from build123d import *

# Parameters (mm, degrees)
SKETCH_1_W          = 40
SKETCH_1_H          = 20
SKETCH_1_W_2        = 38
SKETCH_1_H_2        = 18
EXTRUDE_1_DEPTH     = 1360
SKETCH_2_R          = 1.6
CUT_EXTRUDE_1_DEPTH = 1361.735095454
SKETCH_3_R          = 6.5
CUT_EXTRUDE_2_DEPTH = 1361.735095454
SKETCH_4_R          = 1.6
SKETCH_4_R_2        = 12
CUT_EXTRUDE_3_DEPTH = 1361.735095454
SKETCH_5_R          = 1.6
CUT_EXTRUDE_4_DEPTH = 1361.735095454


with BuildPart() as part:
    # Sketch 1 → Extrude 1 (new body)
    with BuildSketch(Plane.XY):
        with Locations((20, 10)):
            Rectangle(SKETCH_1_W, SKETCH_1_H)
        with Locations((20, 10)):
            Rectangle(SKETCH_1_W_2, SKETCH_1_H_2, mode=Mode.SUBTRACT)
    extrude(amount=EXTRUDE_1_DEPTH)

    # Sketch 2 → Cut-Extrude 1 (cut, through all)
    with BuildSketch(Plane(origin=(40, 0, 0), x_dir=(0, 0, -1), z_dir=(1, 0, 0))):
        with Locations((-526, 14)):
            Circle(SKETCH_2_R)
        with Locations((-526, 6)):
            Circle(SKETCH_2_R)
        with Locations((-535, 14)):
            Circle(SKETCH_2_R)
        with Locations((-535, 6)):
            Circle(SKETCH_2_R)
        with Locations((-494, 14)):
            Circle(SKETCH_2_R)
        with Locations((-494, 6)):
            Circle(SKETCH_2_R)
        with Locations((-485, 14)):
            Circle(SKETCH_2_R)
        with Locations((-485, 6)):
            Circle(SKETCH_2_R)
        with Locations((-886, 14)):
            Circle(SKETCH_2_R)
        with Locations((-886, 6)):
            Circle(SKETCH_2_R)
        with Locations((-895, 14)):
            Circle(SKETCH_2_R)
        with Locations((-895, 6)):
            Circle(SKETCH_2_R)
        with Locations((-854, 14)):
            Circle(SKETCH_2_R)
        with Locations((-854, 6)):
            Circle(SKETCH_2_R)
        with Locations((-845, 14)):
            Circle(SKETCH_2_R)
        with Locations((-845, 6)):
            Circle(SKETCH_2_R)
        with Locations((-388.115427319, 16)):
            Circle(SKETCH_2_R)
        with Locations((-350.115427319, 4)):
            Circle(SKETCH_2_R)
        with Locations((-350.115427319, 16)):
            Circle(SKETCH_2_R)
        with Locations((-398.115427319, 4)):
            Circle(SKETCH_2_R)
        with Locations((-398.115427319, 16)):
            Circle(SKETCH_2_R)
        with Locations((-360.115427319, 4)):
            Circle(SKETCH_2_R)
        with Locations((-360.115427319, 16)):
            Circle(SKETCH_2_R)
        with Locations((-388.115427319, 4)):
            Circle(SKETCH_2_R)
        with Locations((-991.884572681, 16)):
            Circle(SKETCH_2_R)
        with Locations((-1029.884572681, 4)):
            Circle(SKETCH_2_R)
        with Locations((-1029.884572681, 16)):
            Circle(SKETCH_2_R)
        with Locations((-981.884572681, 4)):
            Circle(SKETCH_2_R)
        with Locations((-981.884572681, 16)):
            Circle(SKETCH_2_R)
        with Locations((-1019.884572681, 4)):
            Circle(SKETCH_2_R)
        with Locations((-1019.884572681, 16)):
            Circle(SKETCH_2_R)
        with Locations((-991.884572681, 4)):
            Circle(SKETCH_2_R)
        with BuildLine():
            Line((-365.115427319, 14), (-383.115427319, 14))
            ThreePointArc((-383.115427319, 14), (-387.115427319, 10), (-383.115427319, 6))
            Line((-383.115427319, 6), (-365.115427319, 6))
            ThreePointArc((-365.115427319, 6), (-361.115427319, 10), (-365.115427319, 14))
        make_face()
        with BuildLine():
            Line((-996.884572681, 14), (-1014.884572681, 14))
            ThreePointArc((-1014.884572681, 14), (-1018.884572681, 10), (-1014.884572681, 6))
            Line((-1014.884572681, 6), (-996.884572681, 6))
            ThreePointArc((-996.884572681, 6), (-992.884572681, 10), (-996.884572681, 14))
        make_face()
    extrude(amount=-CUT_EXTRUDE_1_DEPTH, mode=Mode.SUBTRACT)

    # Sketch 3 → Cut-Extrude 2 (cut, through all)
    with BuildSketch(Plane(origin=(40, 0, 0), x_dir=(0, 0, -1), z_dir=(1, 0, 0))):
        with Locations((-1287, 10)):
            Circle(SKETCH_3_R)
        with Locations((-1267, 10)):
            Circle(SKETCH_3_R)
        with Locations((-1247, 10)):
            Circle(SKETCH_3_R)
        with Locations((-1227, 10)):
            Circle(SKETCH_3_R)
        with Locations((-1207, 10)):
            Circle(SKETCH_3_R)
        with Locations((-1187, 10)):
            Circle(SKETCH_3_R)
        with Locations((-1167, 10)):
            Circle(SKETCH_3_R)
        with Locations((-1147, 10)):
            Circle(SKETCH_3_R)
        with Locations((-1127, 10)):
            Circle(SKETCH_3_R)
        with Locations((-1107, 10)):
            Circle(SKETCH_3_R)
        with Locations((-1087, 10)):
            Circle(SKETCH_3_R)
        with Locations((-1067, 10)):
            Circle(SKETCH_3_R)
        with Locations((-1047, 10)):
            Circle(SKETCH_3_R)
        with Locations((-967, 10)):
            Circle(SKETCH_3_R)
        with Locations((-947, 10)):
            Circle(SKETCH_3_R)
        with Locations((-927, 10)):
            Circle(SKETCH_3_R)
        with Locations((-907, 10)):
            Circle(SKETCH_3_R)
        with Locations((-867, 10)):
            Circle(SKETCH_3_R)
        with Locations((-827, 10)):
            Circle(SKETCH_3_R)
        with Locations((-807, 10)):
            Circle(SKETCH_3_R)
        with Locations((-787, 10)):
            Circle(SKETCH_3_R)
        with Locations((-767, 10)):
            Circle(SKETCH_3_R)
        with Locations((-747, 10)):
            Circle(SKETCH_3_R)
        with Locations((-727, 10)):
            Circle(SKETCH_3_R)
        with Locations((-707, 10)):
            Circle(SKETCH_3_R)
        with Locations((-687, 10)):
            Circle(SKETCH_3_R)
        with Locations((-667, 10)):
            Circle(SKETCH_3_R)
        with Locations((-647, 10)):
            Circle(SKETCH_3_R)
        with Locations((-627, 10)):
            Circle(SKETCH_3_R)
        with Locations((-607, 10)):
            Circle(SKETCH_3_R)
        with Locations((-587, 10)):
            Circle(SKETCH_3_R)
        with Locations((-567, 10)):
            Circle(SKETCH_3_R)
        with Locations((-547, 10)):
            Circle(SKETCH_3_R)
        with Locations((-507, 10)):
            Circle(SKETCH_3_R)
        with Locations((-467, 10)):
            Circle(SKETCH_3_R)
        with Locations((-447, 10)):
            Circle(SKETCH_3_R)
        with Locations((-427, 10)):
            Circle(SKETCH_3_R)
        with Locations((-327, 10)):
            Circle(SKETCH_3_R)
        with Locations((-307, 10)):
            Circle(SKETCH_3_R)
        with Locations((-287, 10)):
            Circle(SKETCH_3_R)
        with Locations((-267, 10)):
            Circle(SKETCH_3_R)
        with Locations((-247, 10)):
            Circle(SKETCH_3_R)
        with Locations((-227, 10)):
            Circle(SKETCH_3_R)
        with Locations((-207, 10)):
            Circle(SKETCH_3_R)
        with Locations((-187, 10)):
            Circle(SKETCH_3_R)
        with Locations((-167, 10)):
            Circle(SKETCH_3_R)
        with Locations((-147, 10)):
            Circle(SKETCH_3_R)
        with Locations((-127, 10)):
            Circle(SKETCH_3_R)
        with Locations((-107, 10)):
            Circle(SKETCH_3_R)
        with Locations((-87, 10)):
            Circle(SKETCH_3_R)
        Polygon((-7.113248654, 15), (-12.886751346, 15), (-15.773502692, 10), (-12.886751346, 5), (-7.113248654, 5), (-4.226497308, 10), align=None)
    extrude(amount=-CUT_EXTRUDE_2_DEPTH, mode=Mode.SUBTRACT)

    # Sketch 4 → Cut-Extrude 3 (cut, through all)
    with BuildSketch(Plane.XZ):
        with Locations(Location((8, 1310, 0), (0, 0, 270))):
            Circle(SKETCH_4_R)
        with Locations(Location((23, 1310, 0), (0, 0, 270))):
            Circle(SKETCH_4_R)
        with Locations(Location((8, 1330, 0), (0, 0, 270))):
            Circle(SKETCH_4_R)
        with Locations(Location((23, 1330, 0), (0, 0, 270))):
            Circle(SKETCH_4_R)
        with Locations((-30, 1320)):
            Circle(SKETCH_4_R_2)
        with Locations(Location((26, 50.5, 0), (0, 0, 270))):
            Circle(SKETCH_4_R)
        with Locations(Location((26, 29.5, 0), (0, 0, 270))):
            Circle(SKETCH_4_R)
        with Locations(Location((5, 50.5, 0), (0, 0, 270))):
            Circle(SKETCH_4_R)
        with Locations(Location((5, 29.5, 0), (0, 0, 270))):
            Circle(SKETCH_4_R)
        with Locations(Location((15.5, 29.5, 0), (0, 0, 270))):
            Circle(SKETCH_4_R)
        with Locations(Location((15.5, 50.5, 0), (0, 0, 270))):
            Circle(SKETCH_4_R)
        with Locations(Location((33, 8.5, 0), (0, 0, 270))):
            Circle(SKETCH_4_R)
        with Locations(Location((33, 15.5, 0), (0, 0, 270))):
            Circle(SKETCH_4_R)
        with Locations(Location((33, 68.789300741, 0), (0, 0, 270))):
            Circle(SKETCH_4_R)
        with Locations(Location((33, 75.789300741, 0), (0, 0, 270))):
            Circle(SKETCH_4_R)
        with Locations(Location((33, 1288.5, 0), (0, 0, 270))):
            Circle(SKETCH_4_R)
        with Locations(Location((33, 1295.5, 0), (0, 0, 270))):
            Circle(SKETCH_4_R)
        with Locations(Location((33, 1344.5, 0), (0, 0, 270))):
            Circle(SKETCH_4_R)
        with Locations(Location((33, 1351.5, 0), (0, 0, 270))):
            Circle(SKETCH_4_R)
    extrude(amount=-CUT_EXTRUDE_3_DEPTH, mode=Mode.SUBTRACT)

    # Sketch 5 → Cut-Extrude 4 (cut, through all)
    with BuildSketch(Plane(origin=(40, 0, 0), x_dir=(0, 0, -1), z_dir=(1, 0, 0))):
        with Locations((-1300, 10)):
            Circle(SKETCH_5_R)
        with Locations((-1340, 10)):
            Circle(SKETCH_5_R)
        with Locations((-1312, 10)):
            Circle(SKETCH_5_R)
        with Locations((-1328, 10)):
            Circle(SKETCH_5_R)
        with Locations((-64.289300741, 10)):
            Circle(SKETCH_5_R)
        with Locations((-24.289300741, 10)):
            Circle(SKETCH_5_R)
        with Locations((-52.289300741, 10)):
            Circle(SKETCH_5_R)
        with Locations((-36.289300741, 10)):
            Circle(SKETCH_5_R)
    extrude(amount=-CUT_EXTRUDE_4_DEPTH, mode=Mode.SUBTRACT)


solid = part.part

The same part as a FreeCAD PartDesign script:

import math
import FreeCAD as App
import Part
import Sketcher

V = App.Vector
Q = App.Units.Quantity

doc = App.newDocument("Part")
body = doc.addObject("PartDesign::Body", "Body")

# Sketch on XY plane
sketch1 = body.newObject("Sketcher::SketchObject", "Sketch")
sketch1.AttachmentSupport = (doc.getObject("XY_Plane"), [""])
sketch1.MapMode = "FlatFace"
sketch1.addGeometry(Part.LineSegment(V(0, 20, 0), V(0, 0, 0)), False)
sketch1.addGeometry(Part.LineSegment(V(0, 0, 0), V(40, 0, 0)), False)
sketch1.addGeometry(Part.LineSegment(V(40, 0, 0), V(40, 20, 0)), False)
sketch1.addGeometry(Part.LineSegment(V(40, 20, 0), V(0, 20, 0)), False)
sketch1.addGeometry(Part.LineSegment(V(39, 1, 0), V(1, 1, 0)), False)
sketch1.addGeometry(Part.LineSegment(V(1, 1, 0), V(1, 19, 0)), False)
sketch1.addGeometry(Part.LineSegment(V(1, 19, 0), V(39, 19, 0)), False)
sketch1.addGeometry(Part.LineSegment(V(39, 19, 0), V(39, 1, 0)), False)
sketch1.addConstraint(Sketcher.Constraint("Coincident", 0, 2, 1, 1))
sketch1.addConstraint(Sketcher.Constraint("Coincident", 1, 2, 2, 1))
sketch1.addConstraint(Sketcher.Constraint("Coincident", 2, 2, 3, 1))
sketch1.addConstraint(Sketcher.Constraint("Coincident", 3, 2, 0, 1))
sketch1.addConstraint(Sketcher.Constraint("Coincident", 4, 2, 5, 1))
sketch1.addConstraint(Sketcher.Constraint("Coincident", 5, 2, 6, 1))
sketch1.addConstraint(Sketcher.Constraint("Coincident", 6, 2, 7, 1))
sketch1.addConstraint(Sketcher.Constraint("Coincident", 7, 2, 4, 1))
sketch1.addConstraint(Sketcher.Constraint("Vertical", 0))
sketch1.addConstraint(Sketcher.Constraint("Horizontal", 1))
sketch1.addConstraint(Sketcher.Constraint("Vertical", 2))
sketch1.addConstraint(Sketcher.Constraint("Horizontal", 3))
sketch1.addConstraint(Sketcher.Constraint("Horizontal", 4))
sketch1.addConstraint(Sketcher.Constraint("Vertical", 5))
sketch1.addConstraint(Sketcher.Constraint("Horizontal", 6))
sketch1.addConstraint(Sketcher.Constraint("Vertical", 7))
sketch1.addConstraint(Sketcher.Constraint("Coincident", 0, 2, -1, 1))
sketch1.addConstraint(Sketcher.Constraint("DistanceX", 1, 1, 1, 2, 40.0))
sketch1.addConstraint(Sketcher.Constraint("DistanceX", 4, 2, 4, 1, 38.0))
sketch1.addConstraint(Sketcher.Constraint("DistanceY", 0, 2, 0, 1, 20.0))
sketch1.addConstraint(Sketcher.Constraint("DistanceY", 5, 1, 5, 2, 18.0))
sketch1.addConstraint(Sketcher.Constraint("DistanceX", -1, 1, 4, 2, 1.0))
sketch1.addConstraint(Sketcher.Constraint("DistanceY", -1, 1, 4, 2, 1.0))
pad1 = body.newObject("PartDesign::Pad", "Pad")
pad1.Profile = sketch1
pad1.Length = 1360

# Sketch on YZ plane
sketch2 = body.newObject("Sketcher::SketchObject", "Sketch001")
sketch2.AttachmentSupport = (doc.getObject("YZ_Plane"), [""])
sketch2.MapMode = "FlatFace"
sketch2.AttachmentOffset = App.Placement(V(0, 0, 40), App.Rotation())
sketch2.addGeometry(Part.Circle(V(14, 526, 0), V(0, 0, 1), 1.6), False)
sketch2.addGeometry(Part.Circle(V(6, 526, 0), V(0, 0, 1), 1.6), False)
sketch2.addGeometry(Part.Circle(V(14, 535, 0), V(0, 0, 1), 1.6), False)
sketch2.addGeometry(Part.Circle(V(6, 535, 0), V(0, 0, 1), 1.6), False)
sketch2.addGeometry(Part.Circle(V(14, 494, 0), V(0, 0, 1), 1.6), False)
sketch2.addGeometry(Part.Circle(V(6, 494, 0), V(0, 0, 1), 1.6), False)
sketch2.addGeometry(Part.Circle(V(14, 485, 0), V(0, 0, 1), 1.6), False)
sketch2.addGeometry(Part.Circle(V(6, 485, 0), V(0, 0, 1), 1.6), False)
sketch2.addGeometry(Part.Circle(V(14, 886, 0), V(0, 0, 1), 1.6), False)
sketch2.addGeometry(Part.Circle(V(6, 886, 0), V(0, 0, 1), 1.6), False)
sketch2.addGeometry(Part.Circle(V(14, 895, 0), V(0, 0, 1), 1.6), False)
sketch2.addGeometry(Part.Circle(V(6, 895, 0), V(0, 0, 1), 1.6), False)
sketch2.addGeometry(Part.Circle(V(14, 854, 0), V(0, 0, 1), 1.6), False)
sketch2.addGeometry(Part.Circle(V(6, 854, 0), V(0, 0, 1), 1.6), False)
sketch2.addGeometry(Part.Circle(V(14, 845, 0), V(0, 0, 1), 1.6), False)
sketch2.addGeometry(Part.Circle(V(6, 845, 0), V(0, 0, 1), 1.6), False)
sketch2.addGeometry(Part.Circle(V(16, 388.115427, 0), V(0, 0, 1), 1.6), False)
sketch2.addGeometry(Part.Circle(V(4, 350.115427, 0), V(0, 0, 1), 1.6), False)
sketch2.addGeometry(Part.Circle(V(16, 350.115427, 0), V(0, 0, 1), 1.6), False)
sketch2.addGeometry(Part.Circle(V(4, 398.115427, 0), V(0, 0, 1), 1.6), False)
sketch2.addGeometry(Part.Circle(V(16, 398.115427, 0), V(0, 0, 1), 1.6), False)
sketch2.addGeometry(Part.Circle(V(4, 360.115427, 0), V(0, 0, 1), 1.6), False)
sketch2.addGeometry(Part.Circle(V(16, 360.115427, 0), V(0, 0, 1), 1.6), False)
sketch2.addGeometry(Part.Circle(V(4, 388.115427, 0), V(0, 0, 1), 1.6), False)
sketch2.addGeometry(Part.Circle(V(16, 991.884573, 0), V(0, 0, 1), 1.6), False)
sketch2.addGeometry(Part.Circle(V(4, 1029.884573, 0), V(0, 0, 1), 1.6), False)
sketch2.addGeometry(Part.Circle(V(16, 1029.884573, 0), V(0, 0, 1), 1.6), False)
sketch2.addGeometry(Part.Circle(V(4, 981.884573, 0), V(0, 0, 1), 1.6), False)
sketch2.addGeometry(Part.Circle(V(16, 981.884573, 0), V(0, 0, 1), 1.6), False)
sketch2.addGeometry(Part.Circle(V(4, 1019.884573, 0), V(0, 0, 1), 1.6), False)
sketch2.addGeometry(Part.Circle(V(16, 1019.884573, 0), V(0, 0, 1), 1.6), False)
sketch2.addGeometry(Part.Circle(V(4, 991.884573, 0), V(0, 0, 1), 1.6), False)
sketch2.addGeometry(Part.LineSegment(V(14, 365.115427, 0), V(14, 383.115427, 0)), False)
sketch2.addGeometry(Part.ArcOfCircle(Part.Circle(V(10, 383.115427, 0), V(0, 0, 1), 4), math.radians(0), math.radians(180)), False)
sketch2.addGeometry(Part.LineSegment(V(6, 383.115427, 0), V(6, 365.115427, 0)), False)
sketch2.addGeometry(Part.ArcOfCircle(Part.Circle(V(10, 365.115427, 0), V(0, 0, 1), 4), math.radians(180), math.radians(360)), False)
sketch2.addGeometry(Part.LineSegment(V(14, 996.884573, 0), V(14, 1014.884573, 0)), False)
sketch2.addGeometry(Part.ArcOfCircle(Part.Circle(V(10, 1014.884573, 0), V(0, 0, 1), 4), math.radians(0), math.radians(180)), False)
sketch2.addGeometry(Part.LineSegment(V(6, 1014.884573, 0), V(6, 996.884573, 0)), False)
sketch2.addGeometry(Part.ArcOfCircle(Part.Circle(V(10, 996.884573, 0), V(0, 0, 1), 4), math.radians(180), math.radians(360)), False)
sketch2.addConstraint(Sketcher.Constraint("Tangent", 32, 2, 33, 1))
sketch2.addConstraint(Sketcher.Constraint("Tangent", 33, 2, 34, 1))
sketch2.addConstraint(Sketcher.Constraint("Tangent", 34, 2, 35, 1))
sketch2.addConstraint(Sketcher.Constraint("Tangent", 35, 2, 32, 1))
sketch2.addConstraint(Sketcher.Constraint("Tangent", 36, 2, 37, 1))
sketch2.addConstraint(Sketcher.Constraint("Tangent", 37, 2, 38, 1))
sketch2.addConstraint(Sketcher.Constraint("Tangent", 38, 2, 39, 1))
sketch2.addConstraint(Sketcher.Constraint("Tangent", 39, 2, 36, 1))
sketch2.addConstraint(Sketcher.Constraint("Vertical", 32))
sketch2.addConstraint(Sketcher.Constraint("Vertical", 34))
sketch2.addConstraint(Sketcher.Constraint("Vertical", 36))
sketch2.addConstraint(Sketcher.Constraint("Vertical", 38))
sketch2.addConstraint(Sketcher.Constraint("Equal", 0, 1))
sketch2.addConstraint(Sketcher.Constraint("Equal", 1, 2))
sketch2.addConstraint(Sketcher.Constraint("Equal", 2, 3))
sketch2.addConstraint(Sketcher.Constraint("Equal", 3, 4))
sketch2.addConstraint(Sketcher.Constraint("Equal", 4, 5))
sketch2.addConstraint(Sketcher.Constraint("Equal", 5, 6))
sketch2.addConstraint(Sketcher.Constraint("Equal", 6, 7))
sketch2.addConstraint(Sketcher.Constraint("Equal", 7, 8))
sketch2.addConstraint(Sketcher.Constraint("Equal", 8, 9))
sketch2.addConstraint(Sketcher.Constraint("Equal", 9, 10))
sketch2.addConstraint(Sketcher.Constraint("Equal", 10, 11))
sketch2.addConstraint(Sketcher.Constraint("Equal", 11, 12))
sketch2.addConstraint(Sketcher.Constraint("Equal", 12, 13))
sketch2.addConstraint(Sketcher.Constraint("Equal", 13, 14))
sketch2.addConstraint(Sketcher.Constraint("Equal", 14, 15))
sketch2.addConstraint(Sketcher.Constraint("Equal", 15, 16))
sketch2.addConstraint(Sketcher.Constraint("Equal", 16, 17))
sketch2.addConstraint(Sketcher.Constraint("Equal", 17, 18))
sketch2.addConstraint(Sketcher.Constraint("Equal", 18, 19))
sketch2.addConstraint(Sketcher.Constraint("Equal", 19, 20))
sketch2.addConstraint(Sketcher.Constraint("Equal", 20, 21))
sketch2.addConstraint(Sketcher.Constraint("Equal", 21, 22))
sketch2.addConstraint(Sketcher.Constraint("Equal", 22, 23))
sketch2.addConstraint(Sketcher.Constraint("Equal", 23, 24))
sketch2.addConstraint(Sketcher.Constraint("Equal", 24, 25))
sketch2.addConstraint(Sketcher.Constraint("Equal", 25, 26))
sketch2.addConstraint(Sketcher.Constraint("Equal", 26, 27))
sketch2.addConstraint(Sketcher.Constraint("Equal", 27, 28))
sketch2.addConstraint(Sketcher.Constraint("Equal", 28, 29))
sketch2.addConstraint(Sketcher.Constraint("Equal", 29, 30))
sketch2.addConstraint(Sketcher.Constraint("Equal", 30, 31))
sketch2.addConstraint(Sketcher.Constraint("Equal", 35, 37))
sketch2.addConstraint(Sketcher.Constraint("Horizontal", 0, 3, 1, 3))
sketch2.addConstraint(Sketcher.Constraint("Horizontal", 2, 3, 3, 3))
sketch2.addConstraint(Sketcher.Constraint("Horizontal", 4, 3, 5, 3))
sketch2.addConstraint(Sketcher.Constraint("Horizontal", 6, 3, 7, 3))
sketch2.addConstraint(Sketcher.Constraint("Horizontal", 8, 3, 9, 3))
sketch2.addConstraint(Sketcher.Constraint("Horizontal", 10, 3, 11, 3))
sketch2.addConstraint(Sketcher.Constraint("Horizontal", 12, 3, 13, 3))
sketch2.addConstraint(Sketcher.Constraint("Horizontal", 14, 3, 15, 3))
sketch2.addConstraint(Sketcher.Constraint("Horizontal", 17, 3, 18, 3))
sketch2.addConstraint(Sketcher.Constraint("Horizontal", 19, 3, 20, 3))
sketch2.addConstraint(Sketcher.Constraint("Horizontal", 21, 3, 22, 3))
sketch2.addConstraint(Sketcher.Constraint("Horizontal", 16, 3, 23, 3))
sketch2.addConstraint(Sketcher.Constraint("Horizontal", 25, 3, 26, 3))
sketch2.addConstraint(Sketcher.Constraint("Horizontal", 27, 3, 28, 3))
sketch2.addConstraint(Sketcher.Constraint("Horizontal", 29, 3, 30, 3))
sketch2.addConstraint(Sketcher.Constraint("Horizontal", 24, 3, 31, 3))
sketch2.addConstraint(Sketcher.Constraint("Vertical", 0, 3, 2, 3))
sketch2.addConstraint(Sketcher.Constraint("Vertical", 1, 3, 3, 3))
sketch2.addConstraint(Sketcher.Constraint("Vertical", 2, 3, 4, 3))
sketch2.addConstraint(Sketcher.Constraint("Vertical", 3, 3, 5, 3))
sketch2.addConstraint(Sketcher.Constraint("Vertical", 4, 3, 6, 3))
sketch2.addConstraint(Sketcher.Constraint("Vertical", 5, 3, 7, 3))
sketch2.addConstraint(Sketcher.Constraint("Vertical", 6, 3, 8, 3))
sketch2.addConstraint(Sketcher.Constraint("Vertical", 7, 3, 9, 3))
sketch2.addConstraint(Sketcher.Constraint("Vertical", 8, 3, 10, 3))
sketch2.addConstraint(Sketcher.Constraint("Vertical", 9, 3, 11, 3))
sketch2.addConstraint(Sketcher.Constraint("Vertical", 10, 3, 12, 3))
sketch2.addConstraint(Sketcher.Constraint("Vertical", 11, 3, 13, 3))
sketch2.addConstraint(Sketcher.Constraint("Vertical", 12, 3, 14, 3))
sketch2.addConstraint(Sketcher.Constraint("Vertical", 13, 3, 15, 3))
sketch2.addConstraint(Sketcher.Constraint("Vertical", 16, 3, 18, 3))
sketch2.addConstraint(Sketcher.Constraint("Vertical", 17, 3, 19, 3))
sketch2.addConstraint(Sketcher.Constraint("Vertical", 18, 3, 20, 3))
sketch2.addConstraint(Sketcher.Constraint("Vertical", 19, 3, 21, 3))
sketch2.addConstraint(Sketcher.Constraint("Vertical", 20, 3, 22, 3))
sketch2.addConstraint(Sketcher.Constraint("Vertical", 21, 3, 23, 3))
sketch2.addConstraint(Sketcher.Constraint("Vertical", 22, 3, 24, 3))
sketch2.addConstraint(Sketcher.Constraint("Vertical", 23, 3, 25, 3))
sketch2.addConstraint(Sketcher.Constraint("Vertical", 24, 3, 26, 3))
sketch2.addConstraint(Sketcher.Constraint("Vertical", 25, 3, 27, 3))
sketch2.addConstraint(Sketcher.Constraint("Vertical", 26, 3, 28, 3))
sketch2.addConstraint(Sketcher.Constraint("Vertical", 27, 3, 29, 3))
sketch2.addConstraint(Sketcher.Constraint("Vertical", 28, 3, 30, 3))
sketch2.addConstraint(Sketcher.Constraint("Vertical", 29, 3, 31, 3))
sketch2.addConstraint(Sketcher.Constraint("Vertical", 35, 3, 37, 3))
sketch2.addConstraint(Sketcher.Constraint("Vertical", 14, 3, 32, 2))
sketch2.addConstraint(Sketcher.Constraint("Vertical", 15, 3, 33, 2))
sketch2.addConstraint(Sketcher.Constraint("Equal", 34, 36))
sketch2.addConstraint(Sketcher.Constraint("Radius", 33, 4.0))
sketch2.addConstraint(Sketcher.Constraint("Diameter", 0, 3.2))
sketch2.addConstraint(Sketcher.Constraint("DistanceY", 32, 1, 32, 2, 18.0))
sketch2.addConstraint(Sketcher.Constraint("DistanceX", -1, 1, 0, 3, 14.0))
sketch2.addConstraint(Sketcher.Constraint("DistanceY", -1, 1, 0, 3, 526.0))
sketch2.addConstraint(Sketcher.Constraint("DistanceY", -1, 1, 2, 3, 535.0))
sketch2.addConstraint(Sketcher.Constraint("DistanceY", -1, 1, 4, 3, 494.0))
sketch2.addConstraint(Sketcher.Constraint("DistanceY", -1, 1, 6, 3, 485.0))
sketch2.addConstraint(Sketcher.Constraint("DistanceY", -1, 1, 8, 3, 886.0))
sketch2.addConstraint(Sketcher.Constraint("DistanceY", -1, 1, 10, 3, 895.0))
sketch2.addConstraint(Sketcher.Constraint("DistanceY", -1, 1, 12, 3, 854.0))
sketch2.addConstraint(Sketcher.Constraint("DistanceY", -1, 1, 14, 3, 845.0))
sketch2.addConstraint(Sketcher.Constraint("DistanceX", -1, 1, 16, 3, 16.0))
sketch2.addConstraint(Sketcher.Constraint("DistanceX", -1, 1, 17, 3, 4.0))
sketch2.addConstraint(Sketcher.Constraint("DistanceY", 17, 3, 16, 3, 38.0))
sketch2.addConstraint(Sketcher.Constraint("DistanceY", 16, 3, 19, 3, 10.0))
sketch2.addConstraint(Sketcher.Constraint("DistanceY", 17, 3, 21, 3, 10.0))
sketch2.addConstraint(Sketcher.Constraint("DistanceY", 24, 3, 25, 3, 38.0))
sketch2.addConstraint(Sketcher.Constraint("DistanceY", 27, 3, 24, 3, 10.0))
sketch2.addConstraint(Sketcher.Constraint("DistanceY", 29, 3, 25, 3, 10.0))
sketch2.addConstraint(Sketcher.Constraint("DistanceY", 33, 3, 16, 3, 5.0))
sketch2.addConstraint(Sketcher.Constraint("DistanceY", 37, 3, 29, 3, 5.0))
sketch2.addConstraint(Sketcher.Constraint("DistanceY", -1, 1, 16, 3, 388.115427))
sketch2.addConstraint(Sketcher.Constraint("DistanceY", -1, 1, 24, 3, 991.884573))
pocket1 = body.newObject("PartDesign::Pocket", "Pocket")
pocket1.Profile = sketch2
pocket1.Type = "ThroughAll"

# Sketch on YZ plane
sketch3 = body.newObject("Sketcher::SketchObject", "Sketch002")
sketch3.AttachmentSupport = (doc.getObject("YZ_Plane"), [""])
sketch3.MapMode = "FlatFace"
sketch3.AttachmentOffset = App.Placement(V(0, 0, 40), App.Rotation())
sketch3.addGeometry(Part.Circle(V(10, 1287, 0), V(0, 0, 1), 6.5), False)
sketch3.addGeometry(Part.Circle(V(10, 1267, 0), V(0, 0, 1), 6.5), False)
sketch3.addGeometry(Part.Circle(V(10, 1247, 0), V(0, 0, 1), 6.5), False)
sketch3.addGeometry(Part.Circle(V(10, 1227, 0), V(0, 0, 1), 6.5), False)
sketch3.addGeometry(Part.Circle(V(10, 1207, 0), V(0, 0, 1), 6.5), False)
sketch3.addGeometry(Part.Circle(V(10, 1187, 0), V(0, 0, 1), 6.5), False)
sketch3.addGeometry(Part.Circle(V(10, 1167, 0), V(0, 0, 1), 6.5), False)
sketch3.addGeometry(Part.Circle(V(10, 1147, 0), V(0, 0, 1), 6.5), False)
sketch3.addGeometry(Part.Circle(V(10, 1127, 0), V(0, 0, 1), 6.5), False)
sketch3.addGeometry(Part.Circle(V(10, 1107, 0), V(0, 0, 1), 6.5), False)
sketch3.addGeometry(Part.Circle(V(10, 1087, 0), V(0, 0, 1), 6.5), False)
sketch3.addGeometry(Part.Circle(V(10, 1067, 0), V(0, 0, 1), 6.5), False)
sketch3.addGeometry(Part.Circle(V(10, 1047, 0), V(0, 0, 1), 6.5), False)
sketch3.addGeometry(Part.Circle(V(10, 967, 0), V(0, 0, 1), 6.5), False)
sketch3.addGeometry(Part.Circle(V(10, 947, 0), V(0, 0, 1), 6.5), False)
sketch3.addGeometry(Part.Circle(V(10, 927, 0), V(0, 0, 1), 6.5), False)
sketch3.addGeometry(Part.Circle(V(10, 907, 0), V(0, 0, 1), 6.5), False)
sketch3.addGeometry(Part.Circle(V(10, 867, 0), V(0, 0, 1), 6.5), False)
sketch3.addGeometry(Part.Circle(V(10, 827, 0), V(0, 0, 1), 6.5), False)
sketch3.addGeometry(Part.Circle(V(10, 807, 0), V(0, 0, 1), 6.5), False)
sketch3.addGeometry(Part.Circle(V(10, 787, 0), V(0, 0, 1), 6.5), False)
sketch3.addGeometry(Part.Circle(V(10, 767, 0), V(0, 0, 1), 6.5), False)
sketch3.addGeometry(Part.Circle(V(10, 747, 0), V(0, 0, 1), 6.5), False)
sketch3.addGeometry(Part.Circle(V(10, 727, 0), V(0, 0, 1), 6.5), False)
sketch3.addGeometry(Part.Circle(V(10, 707, 0), V(0, 0, 1), 6.5), False)
sketch3.addGeometry(Part.Circle(V(10, 687, 0), V(0, 0, 1), 6.5), False)
sketch3.addGeometry(Part.Circle(V(10, 667, 0), V(0, 0, 1), 6.5), False)
sketch3.addGeometry(Part.Circle(V(10, 647, 0), V(0, 0, 1), 6.5), False)
sketch3.addGeometry(Part.Circle(V(10, 627, 0), V(0, 0, 1), 6.5), False)
sketch3.addGeometry(Part.Circle(V(10, 607, 0), V(0, 0, 1), 6.5), False)
sketch3.addGeometry(Part.Circle(V(10, 587, 0), V(0, 0, 1), 6.5), False)
sketch3.addGeometry(Part.Circle(V(10, 567, 0), V(0, 0, 1), 6.5), False)
sketch3.addGeometry(Part.Circle(V(10, 547, 0), V(0, 0, 1), 6.5), False)
sketch3.addGeometry(Part.Circle(V(10, 507, 0), V(0, 0, 1), 6.5), False)
sketch3.addGeometry(Part.Circle(V(10, 467, 0), V(0, 0, 1), 6.5), False)
sketch3.addGeometry(Part.Circle(V(10, 447, 0), V(0, 0, 1), 6.5), False)
sketch3.addGeometry(Part.Circle(V(10, 427, 0), V(0, 0, 1), 6.5), False)
sketch3.addGeometry(Part.Circle(V(10, 327, 0), V(0, 0, 1), 6.5), False)
sketch3.addGeometry(Part.Circle(V(10, 307, 0), V(0, 0, 1), 6.5), False)
sketch3.addGeometry(Part.Circle(V(10, 287, 0), V(0, 0, 1), 6.5), False)
sketch3.addGeometry(Part.Circle(V(10, 267, 0), V(0, 0, 1), 6.5), False)
sketch3.addGeometry(Part.Circle(V(10, 247, 0), V(0, 0, 1), 6.5), False)
sketch3.addGeometry(Part.Circle(V(10, 227, 0), V(0, 0, 1), 6.5), False)
sketch3.addGeometry(Part.Circle(V(10, 207, 0), V(0, 0, 1), 6.5), False)
sketch3.addGeometry(Part.Circle(V(10, 187, 0), V(0, 0, 1), 6.5), False)
sketch3.addGeometry(Part.Circle(V(10, 167, 0), V(0, 0, 1), 6.5), False)
sketch3.addGeometry(Part.Circle(V(10, 147, 0), V(0, 0, 1), 6.5), False)
sketch3.addGeometry(Part.Circle(V(10, 127, 0), V(0, 0, 1), 6.5), False)
sketch3.addGeometry(Part.Circle(V(10, 107, 0), V(0, 0, 1), 6.5), False)
sketch3.addGeometry(Part.Circle(V(10, 87, 0), V(0, 0, 1), 6.5), False)
sketch3.addGeometry(Part.LineSegment(V(15, 7.113249, 0), V(15, 12.886751, 0)), False)
sketch3.addGeometry(Part.LineSegment(V(15, 12.886751, 0), V(10, 15.773503, 0)), False)
sketch3.addGeometry(Part.LineSegment(V(10, 15.773503, 0), V(5, 12.886751, 0)), False)
sketch3.addGeometry(Part.LineSegment(V(5, 12.886751, 0), V(5, 7.113249, 0)), False)
sketch3.addGeometry(Part.LineSegment(V(5, 7.113249, 0), V(10, 4.226497, 0)), False)
sketch3.addGeometry(Part.LineSegment(V(10, 4.226497, 0), V(15, 7.113249, 0)), False)
sketch3.addConstraint(Sketcher.Constraint("Coincident", 50, 2, 51, 1))
sketch3.addConstraint(Sketcher.Constraint("Coincident", 51, 2, 52, 1))
sketch3.addConstraint(Sketcher.Constraint("Coincident", 52, 2, 53, 1))
sketch3.addConstraint(Sketcher.Constraint("Coincident", 53, 2, 54, 1))
sketch3.addConstraint(Sketcher.Constraint("Coincident", 54, 2, 55, 1))
sketch3.addConstraint(Sketcher.Constraint("Coincident", 55, 2, 50, 1))
sketch3.addConstraint(Sketcher.Constraint("Vertical", 50))
sketch3.addConstraint(Sketcher.Constraint("Vertical", 53))
sketch3.addConstraint(Sketcher.Constraint("Equal", 0, 1))
sketch3.addConstraint(Sketcher.Constraint("Equal", 1, 2))
sketch3.addConstraint(Sketcher.Constraint("Equal", 2, 3))
sketch3.addConstraint(Sketcher.Constraint("Equal", 3, 4))
sketch3.addConstraint(Sketcher.Constraint("Equal", 4, 5))
sketch3.addConstraint(Sketcher.Constraint("Equal", 5, 6))
sketch3.addConstraint(Sketcher.Constraint("Equal", 6, 7))
sketch3.addConstraint(Sketcher.Constraint("Equal", 7, 8))
sketch3.addConstraint(Sketcher.Constraint("Equal", 8, 9))
sketch3.addConstraint(Sketcher.Constraint("Equal", 9, 10))
sketch3.addConstraint(Sketcher.Constraint("Equal", 10, 11))
sketch3.addConstraint(Sketcher.Constraint("Equal", 11, 12))
sketch3.addConstraint(Sketcher.Constraint("Equal", 12, 13))
sketch3.addConstraint(Sketcher.Constraint("Equal", 13, 14))
sketch3.addConstraint(Sketcher.Constraint("Equal", 14, 15))
sketch3.addConstraint(Sketcher.Constraint("Equal", 15, 16))
sketch3.addConstraint(Sketcher.Constraint("Equal", 16, 17))
sketch3.addConstraint(Sketcher.Constraint("Equal", 17, 18))
sketch3.addConstraint(Sketcher.Constraint("Equal", 18, 19))
sketch3.addConstraint(Sketcher.Constraint("Equal", 19, 20))
sketch3.addConstraint(Sketcher.Constraint("Equal", 20, 21))
sketch3.addConstraint(Sketcher.Constraint("Equal", 21, 22))
sketch3.addConstraint(Sketcher.Constraint("Equal", 22, 23))
sketch3.addConstraint(Sketcher.Constraint("Equal", 23, 24))
sketch3.addConstraint(Sketcher.Constraint("Equal", 24, 25))
sketch3.addConstraint(Sketcher.Constraint("Equal", 25, 26))
sketch3.addConstraint(Sketcher.Constraint("Equal", 26, 27))
sketch3.addConstraint(Sketcher.Constraint("Equal", 27, 28))
sketch3.addConstraint(Sketcher.Constraint("Equal", 28, 29))
sketch3.addConstraint(Sketcher.Constraint("Equal", 29, 30))
sketch3.addConstraint(Sketcher.Constraint("Equal", 30, 31))
sketch3.addConstraint(Sketcher.Constraint("Equal", 31, 32))
sketch3.addConstraint(Sketcher.Constraint("Equal", 32, 33))
sketch3.addConstraint(Sketcher.Constraint("Equal", 33, 34))
sketch3.addConstraint(Sketcher.Constraint("Equal", 34, 35))
sketch3.addConstraint(Sketcher.Constraint("Equal", 35, 36))
sketch3.addConstraint(Sketcher.Constraint("Equal", 36, 37))
sketch3.addConstraint(Sketcher.Constraint("Equal", 37, 38))
sketch3.addConstraint(Sketcher.Constraint("Equal", 38, 39))
sketch3.addConstraint(Sketcher.Constraint("Equal", 39, 40))
sketch3.addConstraint(Sketcher.Constraint("Equal", 40, 41))
sketch3.addConstraint(Sketcher.Constraint("Equal", 41, 42))
sketch3.addConstraint(Sketcher.Constraint("Equal", 42, 43))
sketch3.addConstraint(Sketcher.Constraint("Equal", 43, 44))
sketch3.addConstraint(Sketcher.Constraint("Equal", 44, 45))
sketch3.addConstraint(Sketcher.Constraint("Equal", 45, 46))
sketch3.addConstraint(Sketcher.Constraint("Equal", 46, 47))
sketch3.addConstraint(Sketcher.Constraint("Equal", 47, 48))
sketch3.addConstraint(Sketcher.Constraint("Equal", 48, 49))
sketch3.addConstraint(Sketcher.Constraint("Parallel", 51, 54))
sketch3.addConstraint(Sketcher.Constraint("Parallel", 52, 55))
sketch3.addConstraint(Sketcher.Constraint("Horizontal", 50, 2, 52, 2))
sketch3.addConstraint(Sketcher.Constraint("Horizontal", 53, 2, 55, 2))
sketch3.addConstraint(Sketcher.Constraint("Vertical", 0, 3, 1, 3))
sketch3.addConstraint(Sketcher.Constraint("Vertical", 1, 3, 2, 3))
sketch3.addConstraint(Sketcher.Constraint("Vertical", 2, 3, 3, 3))
sketch3.addConstraint(Sketcher.Constraint("Vertical", 3, 3, 4, 3))
sketch3.addConstraint(Sketcher.Constraint("Vertical", 4, 3, 5, 3))
sketch3.addConstraint(Sketcher.Constraint("Vertical", 5, 3, 6, 3))
sketch3.addConstraint(Sketcher.Constraint("Vertical", 6, 3, 7, 3))
sketch3.addConstraint(Sketcher.Constraint("Vertical", 7, 3, 8, 3))
sketch3.addConstraint(Sketcher.Constraint("Vertical", 8, 3, 9, 3))
sketch3.addConstraint(Sketcher.Constraint("Vertical", 9, 3, 10, 3))
sketch3.addConstraint(Sketcher.Constraint("Vertical", 10, 3, 11, 3))
sketch3.addConstraint(Sketcher.Constraint("Vertical", 11, 3, 12, 3))
sketch3.addConstraint(Sketcher.Constraint("Vertical", 12, 3, 13, 3))
sketch3.addConstraint(Sketcher.Constraint("Vertical", 13, 3, 14, 3))
sketch3.addConstraint(Sketcher.Constraint("Vertical", 14, 3, 15, 3))
sketch3.addConstraint(Sketcher.Constraint("Vertical", 15, 3, 16, 3))
sketch3.addConstraint(Sketcher.Constraint("Vertical", 16, 3, 17, 3))
sketch3.addConstraint(Sketcher.Constraint("Vertical", 17, 3, 18, 3))
sketch3.addConstraint(Sketcher.Constraint("Vertical", 18, 3, 19, 3))
sketch3.addConstraint(Sketcher.Constraint("Vertical", 19, 3, 20, 3))
sketch3.addConstraint(Sketcher.Constraint("Vertical", 20, 3, 21, 3))
sketch3.addConstraint(Sketcher.Constraint("Vertical", 21, 3, 22, 3))
sketch3.addConstraint(Sketcher.Constraint("Vertical", 22, 3, 23, 3))
sketch3.addConstraint(Sketcher.Constraint("Vertical", 23, 3, 24, 3))
sketch3.addConstraint(Sketcher.Constraint("Vertical", 24, 3, 25, 3))
sketch3.addConstraint(Sketcher.Constraint("Vertical", 25, 3, 26, 3))
sketch3.addConstraint(Sketcher.Constraint("Vertical", 26, 3, 27, 3))
sketch3.addConstraint(Sketcher.Constraint("Vertical", 27, 3, 28, 3))
sketch3.addConstraint(Sketcher.Constraint("Vertical", 28, 3, 29, 3))
sketch3.addConstraint(Sketcher.Constraint("Vertical", 29, 3, 30, 3))
sketch3.addConstraint(Sketcher.Constraint("Vertical", 30, 3, 31, 3))
sketch3.addConstraint(Sketcher.Constraint("Vertical", 31, 3, 32, 3))
sketch3.addConstraint(Sketcher.Constraint("Vertical", 32, 3, 33, 3))
sketch3.addConstraint(Sketcher.Constraint("Vertical", 33, 3, 34, 3))
sketch3.addConstraint(Sketcher.Constraint("Vertical", 34, 3, 35, 3))
sketch3.addConstraint(Sketcher.Constraint("Vertical", 35, 3, 36, 3))
sketch3.addConstraint(Sketcher.Constraint("Vertical", 36, 3, 37, 3))
sketch3.addConstraint(Sketcher.Constraint("Vertical", 37, 3, 38, 3))
sketch3.addConstraint(Sketcher.Constraint("Vertical", 38, 3, 39, 3))
sketch3.addConstraint(Sketcher.Constraint("Vertical", 39, 3, 40, 3))
sketch3.addConstraint(Sketcher.Constraint("Vertical", 40, 3, 41, 3))
sketch3.addConstraint(Sketcher.Constraint("Vertical", 41, 3, 42, 3))
sketch3.addConstraint(Sketcher.Constraint("Vertical", 42, 3, 43, 3))
sketch3.addConstraint(Sketcher.Constraint("Vertical", 43, 3, 44, 3))
sketch3.addConstraint(Sketcher.Constraint("Vertical", 44, 3, 45, 3))
sketch3.addConstraint(Sketcher.Constraint("Vertical", 45, 3, 46, 3))
sketch3.addConstraint(Sketcher.Constraint("Vertical", 46, 3, 47, 3))
sketch3.addConstraint(Sketcher.Constraint("Vertical", 47, 3, 48, 3))
sketch3.addConstraint(Sketcher.Constraint("Vertical", 48, 3, 49, 3))
sketch3.addConstraint(Sketcher.Constraint("Vertical", 49, 3, 51, 2))
sketch3.addConstraint(Sketcher.Constraint("Vertical", 51, 2, 54, 2))
sketch3.addConstraint(Sketcher.Constraint("Diameter", 0, 13.0))
sketch3.addConstraint(Sketcher.Constraint("Angle", 51, Q("150 deg")))
sketch3.addConstraint(Sketcher.Constraint("DistanceX", -1, 1, 0, 3, 10.0))
sketch3.addConstraint(Sketcher.Constraint("DistanceY", -1, 1, 0, 3, 1287.0))
sketch3.addConstraint(Sketcher.Constraint("DistanceY", -1, 1, 1, 3, 1267.0))
sketch3.addConstraint(Sketcher.Constraint("DistanceY", -1, 1, 2, 3, 1247.0))
sketch3.addConstraint(Sketcher.Constraint("DistanceY", -1, 1, 3, 3, 1227.0))
sketch3.addConstraint(Sketcher.Constraint("DistanceY", -1, 1, 4, 3, 1207.0))
sketch3.addConstraint(Sketcher.Constraint("DistanceY", -1, 1, 5, 3, 1187.0))
sketch3.addConstraint(Sketcher.Constraint("DistanceY", -1, 1, 6, 3, 1167.0))
sketch3.addConstraint(Sketcher.Constraint("DistanceY", -1, 1, 7, 3, 1147.0))
sketch3.addConstraint(Sketcher.Constraint("DistanceY", -1, 1, 8, 3, 1127.0))
sketch3.addConstraint(Sketcher.Constraint("DistanceY", -1, 1, 9, 3, 1107.0))
sketch3.addConstraint(Sketcher.Constraint("DistanceY", -1, 1, 10, 3, 1087.0))
sketch3.addConstraint(Sketcher.Constraint("DistanceY", -1, 1, 11, 3, 1067.0))
sketch3.addConstraint(Sketcher.Constraint("DistanceY", -1, 1, 12, 3, 1047.0))
sketch3.addConstraint(Sketcher.Constraint("DistanceY", -1, 1, 13, 3, 967.0))
sketch3.addConstraint(Sketcher.Constraint("DistanceY", -1, 1, 14, 3, 947.0))
sketch3.addConstraint(Sketcher.Constraint("DistanceY", -1, 1, 15, 3, 927.0))
sketch3.addConstraint(Sketcher.Constraint("DistanceY", -1, 1, 16, 3, 907.0))
sketch3.addConstraint(Sketcher.Constraint("DistanceY", -1, 1, 17, 3, 867.0))
sketch3.addConstraint(Sketcher.Constraint("DistanceY", -1, 1, 18, 3, 827.0))
sketch3.addConstraint(Sketcher.Constraint("DistanceY", -1, 1, 19, 3, 807.0))
sketch3.addConstraint(Sketcher.Constraint("DistanceY", -1, 1, 20, 3, 787.0))
sketch3.addConstraint(Sketcher.Constraint("DistanceY", -1, 1, 21, 3, 767.0))
sketch3.addConstraint(Sketcher.Constraint("DistanceY", -1, 1, 22, 3, 747.0))
sketch3.addConstraint(Sketcher.Constraint("DistanceY", -1, 1, 23, 3, 727.0))
sketch3.addConstraint(Sketcher.Constraint("DistanceY", -1, 1, 24, 3, 707.0))
sketch3.addConstraint(Sketcher.Constraint("DistanceY", -1, 1, 25, 3, 687.0))
sketch3.addConstraint(Sketcher.Constraint("DistanceY", -1, 1, 26, 3, 667.0))
sketch3.addConstraint(Sketcher.Constraint("DistanceY", -1, 1, 27, 3, 647.0))
sketch3.addConstraint(Sketcher.Constraint("DistanceY", -1, 1, 28, 3, 627.0))
sketch3.addConstraint(Sketcher.Constraint("DistanceY", -1, 1, 29, 3, 607.0))
sketch3.addConstraint(Sketcher.Constraint("DistanceY", -1, 1, 30, 3, 587.0))
sketch3.addConstraint(Sketcher.Constraint("DistanceY", -1, 1, 31, 3, 567.0))
sketch3.addConstraint(Sketcher.Constraint("DistanceY", -1, 1, 32, 3, 547.0))
sketch3.addConstraint(Sketcher.Constraint("DistanceY", -1, 1, 33, 3, 507.0))
sketch3.addConstraint(Sketcher.Constraint("DistanceY", -1, 1, 34, 3, 467.0))
sketch3.addConstraint(Sketcher.Constraint("DistanceY", -1, 1, 35, 3, 447.0))
sketch3.addConstraint(Sketcher.Constraint("DistanceY", -1, 1, 36, 3, 427.0))
sketch3.addConstraint(Sketcher.Constraint("DistanceY", -1, 1, 37, 3, 327.0))
sketch3.addConstraint(Sketcher.Constraint("DistanceY", -1, 1, 38, 3, 307.0))
sketch3.addConstraint(Sketcher.Constraint("DistanceY", -1, 1, 39, 3, 287.0))
sketch3.addConstraint(Sketcher.Constraint("DistanceY", -1, 1, 40, 3, 267.0))
sketch3.addConstraint(Sketcher.Constraint("DistanceY", -1, 1, 41, 3, 247.0))
sketch3.addConstraint(Sketcher.Constraint("DistanceY", -1, 1, 42, 3, 227.0))
sketch3.addConstraint(Sketcher.Constraint("DistanceY", -1, 1, 43, 3, 207.0))
sketch3.addConstraint(Sketcher.Constraint("DistanceY", -1, 1, 44, 3, 187.0))
sketch3.addConstraint(Sketcher.Constraint("DistanceY", -1, 1, 45, 3, 167.0))
sketch3.addConstraint(Sketcher.Constraint("DistanceY", -1, 1, 46, 3, 147.0))
sketch3.addConstraint(Sketcher.Constraint("DistanceY", -1, 1, 47, 3, 127.0))
sketch3.addConstraint(Sketcher.Constraint("DistanceY", -1, 1, 48, 3, 107.0))
sketch3.addConstraint(Sketcher.Constraint("DistanceY", -1, 1, 49, 3, 87.0))
sketch3.addConstraint(Sketcher.Constraint("DistanceX", -1, 1, 50, 2, 15.0))
sketch3.addConstraint(Sketcher.Constraint("DistanceY", 50, 1, 50, 2, 5.773503))
sketch3.addConstraint(Sketcher.Constraint("DistanceY", -1, 1, 50, 2, 12.886751))
pocket2 = body.newObject("PartDesign::Pocket", "Pocket001")
pocket2.Profile = sketch3
pocket2.Type = "ThroughAll"

# Sketch on XZ plane
sketch4 = body.newObject("Sketcher::SketchObject", "Sketch003")
sketch4.AttachmentSupport = (doc.getObject("XZ_Plane"), [""])
sketch4.MapMode = "FlatFace"
sketch4.addGeometry(Part.Circle(V(8, 1310, 0), V(0, 0, 1), 1.6), False)
sketch4.addGeometry(Part.Circle(V(23, 1310, 0), V(0, 0, 1), 1.6), False)
sketch4.addGeometry(Part.Circle(V(8, 1330, 0), V(0, 0, 1), 1.6), False)
sketch4.addGeometry(Part.Circle(V(23, 1330, 0), V(0, 0, 1), 1.6), False)
sketch4.addGeometry(Part.Circle(V(-30, 1320, 0), V(0, 0, 1), 12), False)
sketch4.addGeometry(Part.Circle(V(26, 50.5, 0), V(0, 0, 1), 1.6), False)
sketch4.addGeometry(Part.Circle(V(26, 29.5, 0), V(0, 0, 1), 1.6), False)
sketch4.addGeometry(Part.Circle(V(5, 50.5, 0), V(0, 0, 1), 1.6), False)
sketch4.addGeometry(Part.Circle(V(5, 29.5, 0), V(0, 0, 1), 1.6), False)
sketch4.addGeometry(Part.Circle(V(15.5, 29.5, 0), V(0, 0, 1), 1.6), False)
sketch4.addGeometry(Part.Circle(V(15.5, 50.5, 0), V(0, 0, 1), 1.6), False)
sketch4.addGeometry(Part.Circle(V(33, 8.5, 0), V(0, 0, 1), 1.6), False)
sketch4.addGeometry(Part.Circle(V(33, 15.5, 0), V(0, 0, 1), 1.6), False)
sketch4.addGeometry(Part.Circle(V(33, 68.789301, 0), V(0, 0, 1), 1.6), False)
sketch4.addGeometry(Part.Circle(V(33, 75.789301, 0), V(0, 0, 1), 1.6), False)
sketch4.addGeometry(Part.Circle(V(33, 1288.5, 0), V(0, 0, 1), 1.6), False)
sketch4.addGeometry(Part.Circle(V(33, 1295.5, 0), V(0, 0, 1), 1.6), False)
sketch4.addGeometry(Part.Circle(V(33, 1344.5, 0), V(0, 0, 1), 1.6), False)
sketch4.addGeometry(Part.Circle(V(33, 1351.5, 0), V(0, 0, 1), 1.6), False)
sketch4.addConstraint(Sketcher.Constraint("Equal", 0, 1))
sketch4.addConstraint(Sketcher.Constraint("Equal", 1, 2))
sketch4.addConstraint(Sketcher.Constraint("Equal", 2, 3))
sketch4.addConstraint(Sketcher.Constraint("Equal", 3, 5))
sketch4.addConstraint(Sketcher.Constraint("Equal", 5, 6))
sketch4.addConstraint(Sketcher.Constraint("Equal", 6, 7))
sketch4.addConstraint(Sketcher.Constraint("Equal", 7, 8))
sketch4.addConstraint(Sketcher.Constraint("Equal", 8, 9))
sketch4.addConstraint(Sketcher.Constraint("Equal", 9, 10))
sketch4.addConstraint(Sketcher.Constraint("Equal", 10, 11))
sketch4.addConstraint(Sketcher.Constraint("Equal", 11, 12))
sketch4.addConstraint(Sketcher.Constraint("Equal", 12, 13))
sketch4.addConstraint(Sketcher.Constraint("Equal", 13, 14))
sketch4.addConstraint(Sketcher.Constraint("Equal", 14, 15))
sketch4.addConstraint(Sketcher.Constraint("Equal", 15, 16))
sketch4.addConstraint(Sketcher.Constraint("Equal", 16, 17))
sketch4.addConstraint(Sketcher.Constraint("Equal", 17, 18))
sketch4.addConstraint(Sketcher.Constraint("Horizontal", 0, 3, 1, 3))
sketch4.addConstraint(Sketcher.Constraint("Horizontal", 2, 3, 3, 3))
sketch4.addConstraint(Sketcher.Constraint("Horizontal", 5, 3, 7, 3))
sketch4.addConstraint(Sketcher.Constraint("Horizontal", 6, 3, 8, 3))
sketch4.addConstraint(Sketcher.Constraint("Horizontal", 8, 3, 9, 3))
sketch4.addConstraint(Sketcher.Constraint("Horizontal", 7, 3, 10, 3))
sketch4.addConstraint(Sketcher.Constraint("Vertical", 0, 3, 2, 3))
sketch4.addConstraint(Sketcher.Constraint("Vertical", 1, 3, 3, 3))
sketch4.addConstraint(Sketcher.Constraint("Vertical", 5, 3, 6, 3))
sketch4.addConstraint(Sketcher.Constraint("Vertical", 7, 3, 8, 3))
sketch4.addConstraint(Sketcher.Constraint("Vertical", 9, 3, 10, 3))
sketch4.addConstraint(Sketcher.Constraint("Vertical", 11, 3, 12, 3))
sketch4.addConstraint(Sketcher.Constraint("Vertical", 12, 3, 13, 3))
sketch4.addConstraint(Sketcher.Constraint("Vertical", 13, 3, 14, 3))
sketch4.addConstraint(Sketcher.Constraint("Vertical", 14, 3, 15, 3))
sketch4.addConstraint(Sketcher.Constraint("Vertical", 15, 3, 16, 3))
sketch4.addConstraint(Sketcher.Constraint("Vertical", 16, 3, 17, 3))
sketch4.addConstraint(Sketcher.Constraint("Vertical", 17, 3, 18, 3))
sketch4.addConstraint(Sketcher.Constraint("Diameter", 4, 24.0))
sketch4.addConstraint(Sketcher.Constraint("Diameter", 0, 3.2))
sketch4.addConstraint(Sketcher.Constraint("DistanceX", -1, 1, 0, 3, 8.0))
sketch4.addConstraint(Sketcher.Constraint("DistanceY", -1, 1, 0, 3, 1310.0))
sketch4.addConstraint(Sketcher.Constraint("DistanceX", -1, 1, 1, 3, 23.0))
sketch4.addConstraint(Sketcher.Constraint("DistanceY", -1, 1, 2, 3, 1330.0))
sketch4.addConstraint(Sketcher.Constraint("DistanceX", 4, 3, -1, 1, 30.0))
sketch4.addConstraint(Sketcher.Constraint("DistanceY", -1, 1, 4, 3, 1320.0))
sketch4.addConstraint(Sketcher.Constraint("DistanceX", -1, 1, 5, 3, 26.0))
sketch4.addConstraint(Sketcher.Constraint("DistanceX", -1, 1, 7, 3, 5.0))
sketch4.addConstraint(Sketcher.Constraint("DistanceX", -1, 1, 11, 3, 33.0))
sketch4.addConstraint(Sketcher.Constraint("DistanceY", 6, 3, 5, 3, 21.0))
sketch4.addConstraint(Sketcher.Constraint("DistanceY", 11, 3, 6, 3, 21.0))
sketch4.addConstraint(Sketcher.Constraint("DistanceY", 11, 3, 12, 3, 7.0))
sketch4.addConstraint(Sketcher.Constraint("DistanceY", 13, 3, 14, 3, 7.0))
sketch4.addConstraint(Sketcher.Constraint("DistanceY", 15, 3, 16, 3, 7.0))
sketch4.addConstraint(Sketcher.Constraint("DistanceY", 16, 3, 17, 3, 49.0))
sketch4.addConstraint(Sketcher.Constraint("DistanceY", 17, 3, 18, 3, 7.0))
sketch4.addConstraint(Sketcher.Constraint("DistanceY", -1, 1, 5, 3, 50.5))
sketch4.addConstraint(Sketcher.Constraint("DistanceX", -1, 1, 9, 3, 15.5))
sketch4.addConstraint(Sketcher.Constraint("DistanceY", -1, 1, 15, 3, 1288.5))
sketch4.addConstraint(Sketcher.Constraint("DistanceY", -1, 1, 13, 3, 68.789301))
pocket3 = body.newObject("PartDesign::Pocket", "Pocket002")
pocket3.Profile = sketch4
pocket3.Type = "ThroughAll"

# Sketch on YZ plane
sketch5 = body.newObject("Sketcher::SketchObject", "Sketch004")
sketch5.AttachmentSupport = (doc.getObject("YZ_Plane"), [""])
sketch5.MapMode = "FlatFace"
sketch5.AttachmentOffset = App.Placement(V(0, 0, 40), App.Rotation())
sketch5.addGeometry(Part.Circle(V(10, 1300, 0), V(0, 0, 1), 1.6), False)
sketch5.addGeometry(Part.Circle(V(10, 1340, 0), V(0, 0, 1), 1.6), False)
sketch5.addGeometry(Part.Circle(V(10, 1312, 0), V(0, 0, 1), 1.6), False)
sketch5.addGeometry(Part.Circle(V(10, 1328, 0), V(0, 0, 1), 1.6), False)
sketch5.addGeometry(Part.Circle(V(10, 64.289301, 0), V(0, 0, 1), 1.6), False)
sketch5.addGeometry(Part.Circle(V(10, 24.289301, 0), V(0, 0, 1), 1.6), False)
sketch5.addGeometry(Part.Circle(V(10, 52.289301, 0), V(0, 0, 1), 1.6), False)
sketch5.addGeometry(Part.Circle(V(10, 36.289301, 0), V(0, 0, 1), 1.6), False)
sketch5.addConstraint(Sketcher.Constraint("Equal", 0, 1))
sketch5.addConstraint(Sketcher.Constraint("Equal", 1, 2))
sketch5.addConstraint(Sketcher.Constraint("Equal", 2, 3))
sketch5.addConstraint(Sketcher.Constraint("Equal", 3, 4))
sketch5.addConstraint(Sketcher.Constraint("Equal", 4, 5))
sketch5.addConstraint(Sketcher.Constraint("Equal", 5, 6))
sketch5.addConstraint(Sketcher.Constraint("Equal", 6, 7))
sketch5.addConstraint(Sketcher.Constraint("Vertical", 0, 3, 1, 3))
sketch5.addConstraint(Sketcher.Constraint("Vertical", 1, 3, 2, 3))
sketch5.addConstraint(Sketcher.Constraint("Vertical", 2, 3, 3, 3))
sketch5.addConstraint(Sketcher.Constraint("Vertical", 3, 3, 4, 3))
sketch5.addConstraint(Sketcher.Constraint("Vertical", 4, 3, 5, 3))
sketch5.addConstraint(Sketcher.Constraint("Vertical", 5, 3, 6, 3))
sketch5.addConstraint(Sketcher.Constraint("Vertical", 6, 3, 7, 3))
sketch5.addConstraint(Sketcher.Constraint("Diameter", 0, 3.2))
sketch5.addConstraint(Sketcher.Constraint("DistanceX", -1, 1, 0, 3, 10.0))
sketch5.addConstraint(Sketcher.Constraint("DistanceY", -1, 1, 0, 3, 1300.0))
sketch5.addConstraint(Sketcher.Constraint("DistanceY", -1, 1, 1, 3, 1340.0))
sketch5.addConstraint(Sketcher.Constraint("DistanceY", -1, 1, 2, 3, 1312.0))
sketch5.addConstraint(Sketcher.Constraint("DistanceY", -1, 1, 3, 3, 1328.0))
sketch5.addConstraint(Sketcher.Constraint("DistanceY", 5, 3, 4, 3, 40.0))
sketch5.addConstraint(Sketcher.Constraint("DistanceY", 6, 3, 4, 3, 12.0))
sketch5.addConstraint(Sketcher.Constraint("DistanceY", 5, 3, 7, 3, 12.0))
sketch5.addConstraint(Sketcher.Constraint("DistanceY", -1, 1, 4, 3, 64.289301))
pocket4 = body.newObject("PartDesign::Pocket", "Pocket003")
pocket4.Profile = sketch5
pocket4.Type = "ThroughAll"

doc.recompute()
